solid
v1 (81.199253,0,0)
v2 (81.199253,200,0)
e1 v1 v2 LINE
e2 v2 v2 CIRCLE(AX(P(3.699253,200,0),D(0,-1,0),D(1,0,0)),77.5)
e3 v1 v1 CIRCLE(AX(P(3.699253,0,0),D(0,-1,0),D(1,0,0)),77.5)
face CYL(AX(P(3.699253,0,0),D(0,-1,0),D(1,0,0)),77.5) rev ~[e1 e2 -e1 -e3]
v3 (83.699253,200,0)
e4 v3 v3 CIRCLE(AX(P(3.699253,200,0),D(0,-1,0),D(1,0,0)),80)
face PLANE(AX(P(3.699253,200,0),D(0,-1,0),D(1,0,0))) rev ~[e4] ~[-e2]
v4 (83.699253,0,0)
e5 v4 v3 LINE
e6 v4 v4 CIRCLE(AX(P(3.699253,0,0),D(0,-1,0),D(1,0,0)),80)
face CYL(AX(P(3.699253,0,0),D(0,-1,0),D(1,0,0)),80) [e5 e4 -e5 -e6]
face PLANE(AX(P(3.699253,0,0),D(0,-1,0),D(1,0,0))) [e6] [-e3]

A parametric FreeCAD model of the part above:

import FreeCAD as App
import Part
import Sketcher
from FreeCAD import Vector
Q = App.Units.Quantity


def faces_at(feature, points):
    """Names of the faces that lie closest to the given points."""
    faces = feature.Shape.Faces
    near = lambda p: min(range(len(faces)), key=lambda i: faces[i].distToShape(Part.Vertex(*p))[0])
    return sorted({f"Face{near(p) + 1}" for p in points})

doc = App.newDocument("Part")
body = doc.addObject("PartDesign::Body", "Body")

sketch1 = body.newObject("Sketcher::SketchObject", "Sketch")
sketch1.AttachmentSupport = (doc.getObject("XZ_Plane"), [""])
sketch1.MapMode = "FlatFace"
sketch1.addGeometry(Part.Circle(Vector(4, 0, 0), Vector(0, 0, 1), 80), False)
sketch1.addConstraint(Sketcher.Constraint("PointOnObject", 0, 3, -1))
sketch1.addConstraint(Sketcher.Constraint("Diameter", 0, Q("160 mm")))
sketch1.addConstraint(Sketcher.Constraint("DistanceX", -1, 1, 0, 3, Q("3.699253 mm")))
pad1 = body.newObject("PartDesign::Pad", "Pad")
pad1.Profile = sketch1
pad1.Length = 200
pad1.Reversed = True
doc.recompute()

thickness = body.newObject("PartDesign::Thickness", "Thickness")
thickness.Base = (pad1, faces_at(pad1, [(3.699, 0, 0), (3.699, 200, 0)]))
thickness.Value = 2.5
thickness.Reversed = True
thickness.Join = "Arc"

doc.recompute()
